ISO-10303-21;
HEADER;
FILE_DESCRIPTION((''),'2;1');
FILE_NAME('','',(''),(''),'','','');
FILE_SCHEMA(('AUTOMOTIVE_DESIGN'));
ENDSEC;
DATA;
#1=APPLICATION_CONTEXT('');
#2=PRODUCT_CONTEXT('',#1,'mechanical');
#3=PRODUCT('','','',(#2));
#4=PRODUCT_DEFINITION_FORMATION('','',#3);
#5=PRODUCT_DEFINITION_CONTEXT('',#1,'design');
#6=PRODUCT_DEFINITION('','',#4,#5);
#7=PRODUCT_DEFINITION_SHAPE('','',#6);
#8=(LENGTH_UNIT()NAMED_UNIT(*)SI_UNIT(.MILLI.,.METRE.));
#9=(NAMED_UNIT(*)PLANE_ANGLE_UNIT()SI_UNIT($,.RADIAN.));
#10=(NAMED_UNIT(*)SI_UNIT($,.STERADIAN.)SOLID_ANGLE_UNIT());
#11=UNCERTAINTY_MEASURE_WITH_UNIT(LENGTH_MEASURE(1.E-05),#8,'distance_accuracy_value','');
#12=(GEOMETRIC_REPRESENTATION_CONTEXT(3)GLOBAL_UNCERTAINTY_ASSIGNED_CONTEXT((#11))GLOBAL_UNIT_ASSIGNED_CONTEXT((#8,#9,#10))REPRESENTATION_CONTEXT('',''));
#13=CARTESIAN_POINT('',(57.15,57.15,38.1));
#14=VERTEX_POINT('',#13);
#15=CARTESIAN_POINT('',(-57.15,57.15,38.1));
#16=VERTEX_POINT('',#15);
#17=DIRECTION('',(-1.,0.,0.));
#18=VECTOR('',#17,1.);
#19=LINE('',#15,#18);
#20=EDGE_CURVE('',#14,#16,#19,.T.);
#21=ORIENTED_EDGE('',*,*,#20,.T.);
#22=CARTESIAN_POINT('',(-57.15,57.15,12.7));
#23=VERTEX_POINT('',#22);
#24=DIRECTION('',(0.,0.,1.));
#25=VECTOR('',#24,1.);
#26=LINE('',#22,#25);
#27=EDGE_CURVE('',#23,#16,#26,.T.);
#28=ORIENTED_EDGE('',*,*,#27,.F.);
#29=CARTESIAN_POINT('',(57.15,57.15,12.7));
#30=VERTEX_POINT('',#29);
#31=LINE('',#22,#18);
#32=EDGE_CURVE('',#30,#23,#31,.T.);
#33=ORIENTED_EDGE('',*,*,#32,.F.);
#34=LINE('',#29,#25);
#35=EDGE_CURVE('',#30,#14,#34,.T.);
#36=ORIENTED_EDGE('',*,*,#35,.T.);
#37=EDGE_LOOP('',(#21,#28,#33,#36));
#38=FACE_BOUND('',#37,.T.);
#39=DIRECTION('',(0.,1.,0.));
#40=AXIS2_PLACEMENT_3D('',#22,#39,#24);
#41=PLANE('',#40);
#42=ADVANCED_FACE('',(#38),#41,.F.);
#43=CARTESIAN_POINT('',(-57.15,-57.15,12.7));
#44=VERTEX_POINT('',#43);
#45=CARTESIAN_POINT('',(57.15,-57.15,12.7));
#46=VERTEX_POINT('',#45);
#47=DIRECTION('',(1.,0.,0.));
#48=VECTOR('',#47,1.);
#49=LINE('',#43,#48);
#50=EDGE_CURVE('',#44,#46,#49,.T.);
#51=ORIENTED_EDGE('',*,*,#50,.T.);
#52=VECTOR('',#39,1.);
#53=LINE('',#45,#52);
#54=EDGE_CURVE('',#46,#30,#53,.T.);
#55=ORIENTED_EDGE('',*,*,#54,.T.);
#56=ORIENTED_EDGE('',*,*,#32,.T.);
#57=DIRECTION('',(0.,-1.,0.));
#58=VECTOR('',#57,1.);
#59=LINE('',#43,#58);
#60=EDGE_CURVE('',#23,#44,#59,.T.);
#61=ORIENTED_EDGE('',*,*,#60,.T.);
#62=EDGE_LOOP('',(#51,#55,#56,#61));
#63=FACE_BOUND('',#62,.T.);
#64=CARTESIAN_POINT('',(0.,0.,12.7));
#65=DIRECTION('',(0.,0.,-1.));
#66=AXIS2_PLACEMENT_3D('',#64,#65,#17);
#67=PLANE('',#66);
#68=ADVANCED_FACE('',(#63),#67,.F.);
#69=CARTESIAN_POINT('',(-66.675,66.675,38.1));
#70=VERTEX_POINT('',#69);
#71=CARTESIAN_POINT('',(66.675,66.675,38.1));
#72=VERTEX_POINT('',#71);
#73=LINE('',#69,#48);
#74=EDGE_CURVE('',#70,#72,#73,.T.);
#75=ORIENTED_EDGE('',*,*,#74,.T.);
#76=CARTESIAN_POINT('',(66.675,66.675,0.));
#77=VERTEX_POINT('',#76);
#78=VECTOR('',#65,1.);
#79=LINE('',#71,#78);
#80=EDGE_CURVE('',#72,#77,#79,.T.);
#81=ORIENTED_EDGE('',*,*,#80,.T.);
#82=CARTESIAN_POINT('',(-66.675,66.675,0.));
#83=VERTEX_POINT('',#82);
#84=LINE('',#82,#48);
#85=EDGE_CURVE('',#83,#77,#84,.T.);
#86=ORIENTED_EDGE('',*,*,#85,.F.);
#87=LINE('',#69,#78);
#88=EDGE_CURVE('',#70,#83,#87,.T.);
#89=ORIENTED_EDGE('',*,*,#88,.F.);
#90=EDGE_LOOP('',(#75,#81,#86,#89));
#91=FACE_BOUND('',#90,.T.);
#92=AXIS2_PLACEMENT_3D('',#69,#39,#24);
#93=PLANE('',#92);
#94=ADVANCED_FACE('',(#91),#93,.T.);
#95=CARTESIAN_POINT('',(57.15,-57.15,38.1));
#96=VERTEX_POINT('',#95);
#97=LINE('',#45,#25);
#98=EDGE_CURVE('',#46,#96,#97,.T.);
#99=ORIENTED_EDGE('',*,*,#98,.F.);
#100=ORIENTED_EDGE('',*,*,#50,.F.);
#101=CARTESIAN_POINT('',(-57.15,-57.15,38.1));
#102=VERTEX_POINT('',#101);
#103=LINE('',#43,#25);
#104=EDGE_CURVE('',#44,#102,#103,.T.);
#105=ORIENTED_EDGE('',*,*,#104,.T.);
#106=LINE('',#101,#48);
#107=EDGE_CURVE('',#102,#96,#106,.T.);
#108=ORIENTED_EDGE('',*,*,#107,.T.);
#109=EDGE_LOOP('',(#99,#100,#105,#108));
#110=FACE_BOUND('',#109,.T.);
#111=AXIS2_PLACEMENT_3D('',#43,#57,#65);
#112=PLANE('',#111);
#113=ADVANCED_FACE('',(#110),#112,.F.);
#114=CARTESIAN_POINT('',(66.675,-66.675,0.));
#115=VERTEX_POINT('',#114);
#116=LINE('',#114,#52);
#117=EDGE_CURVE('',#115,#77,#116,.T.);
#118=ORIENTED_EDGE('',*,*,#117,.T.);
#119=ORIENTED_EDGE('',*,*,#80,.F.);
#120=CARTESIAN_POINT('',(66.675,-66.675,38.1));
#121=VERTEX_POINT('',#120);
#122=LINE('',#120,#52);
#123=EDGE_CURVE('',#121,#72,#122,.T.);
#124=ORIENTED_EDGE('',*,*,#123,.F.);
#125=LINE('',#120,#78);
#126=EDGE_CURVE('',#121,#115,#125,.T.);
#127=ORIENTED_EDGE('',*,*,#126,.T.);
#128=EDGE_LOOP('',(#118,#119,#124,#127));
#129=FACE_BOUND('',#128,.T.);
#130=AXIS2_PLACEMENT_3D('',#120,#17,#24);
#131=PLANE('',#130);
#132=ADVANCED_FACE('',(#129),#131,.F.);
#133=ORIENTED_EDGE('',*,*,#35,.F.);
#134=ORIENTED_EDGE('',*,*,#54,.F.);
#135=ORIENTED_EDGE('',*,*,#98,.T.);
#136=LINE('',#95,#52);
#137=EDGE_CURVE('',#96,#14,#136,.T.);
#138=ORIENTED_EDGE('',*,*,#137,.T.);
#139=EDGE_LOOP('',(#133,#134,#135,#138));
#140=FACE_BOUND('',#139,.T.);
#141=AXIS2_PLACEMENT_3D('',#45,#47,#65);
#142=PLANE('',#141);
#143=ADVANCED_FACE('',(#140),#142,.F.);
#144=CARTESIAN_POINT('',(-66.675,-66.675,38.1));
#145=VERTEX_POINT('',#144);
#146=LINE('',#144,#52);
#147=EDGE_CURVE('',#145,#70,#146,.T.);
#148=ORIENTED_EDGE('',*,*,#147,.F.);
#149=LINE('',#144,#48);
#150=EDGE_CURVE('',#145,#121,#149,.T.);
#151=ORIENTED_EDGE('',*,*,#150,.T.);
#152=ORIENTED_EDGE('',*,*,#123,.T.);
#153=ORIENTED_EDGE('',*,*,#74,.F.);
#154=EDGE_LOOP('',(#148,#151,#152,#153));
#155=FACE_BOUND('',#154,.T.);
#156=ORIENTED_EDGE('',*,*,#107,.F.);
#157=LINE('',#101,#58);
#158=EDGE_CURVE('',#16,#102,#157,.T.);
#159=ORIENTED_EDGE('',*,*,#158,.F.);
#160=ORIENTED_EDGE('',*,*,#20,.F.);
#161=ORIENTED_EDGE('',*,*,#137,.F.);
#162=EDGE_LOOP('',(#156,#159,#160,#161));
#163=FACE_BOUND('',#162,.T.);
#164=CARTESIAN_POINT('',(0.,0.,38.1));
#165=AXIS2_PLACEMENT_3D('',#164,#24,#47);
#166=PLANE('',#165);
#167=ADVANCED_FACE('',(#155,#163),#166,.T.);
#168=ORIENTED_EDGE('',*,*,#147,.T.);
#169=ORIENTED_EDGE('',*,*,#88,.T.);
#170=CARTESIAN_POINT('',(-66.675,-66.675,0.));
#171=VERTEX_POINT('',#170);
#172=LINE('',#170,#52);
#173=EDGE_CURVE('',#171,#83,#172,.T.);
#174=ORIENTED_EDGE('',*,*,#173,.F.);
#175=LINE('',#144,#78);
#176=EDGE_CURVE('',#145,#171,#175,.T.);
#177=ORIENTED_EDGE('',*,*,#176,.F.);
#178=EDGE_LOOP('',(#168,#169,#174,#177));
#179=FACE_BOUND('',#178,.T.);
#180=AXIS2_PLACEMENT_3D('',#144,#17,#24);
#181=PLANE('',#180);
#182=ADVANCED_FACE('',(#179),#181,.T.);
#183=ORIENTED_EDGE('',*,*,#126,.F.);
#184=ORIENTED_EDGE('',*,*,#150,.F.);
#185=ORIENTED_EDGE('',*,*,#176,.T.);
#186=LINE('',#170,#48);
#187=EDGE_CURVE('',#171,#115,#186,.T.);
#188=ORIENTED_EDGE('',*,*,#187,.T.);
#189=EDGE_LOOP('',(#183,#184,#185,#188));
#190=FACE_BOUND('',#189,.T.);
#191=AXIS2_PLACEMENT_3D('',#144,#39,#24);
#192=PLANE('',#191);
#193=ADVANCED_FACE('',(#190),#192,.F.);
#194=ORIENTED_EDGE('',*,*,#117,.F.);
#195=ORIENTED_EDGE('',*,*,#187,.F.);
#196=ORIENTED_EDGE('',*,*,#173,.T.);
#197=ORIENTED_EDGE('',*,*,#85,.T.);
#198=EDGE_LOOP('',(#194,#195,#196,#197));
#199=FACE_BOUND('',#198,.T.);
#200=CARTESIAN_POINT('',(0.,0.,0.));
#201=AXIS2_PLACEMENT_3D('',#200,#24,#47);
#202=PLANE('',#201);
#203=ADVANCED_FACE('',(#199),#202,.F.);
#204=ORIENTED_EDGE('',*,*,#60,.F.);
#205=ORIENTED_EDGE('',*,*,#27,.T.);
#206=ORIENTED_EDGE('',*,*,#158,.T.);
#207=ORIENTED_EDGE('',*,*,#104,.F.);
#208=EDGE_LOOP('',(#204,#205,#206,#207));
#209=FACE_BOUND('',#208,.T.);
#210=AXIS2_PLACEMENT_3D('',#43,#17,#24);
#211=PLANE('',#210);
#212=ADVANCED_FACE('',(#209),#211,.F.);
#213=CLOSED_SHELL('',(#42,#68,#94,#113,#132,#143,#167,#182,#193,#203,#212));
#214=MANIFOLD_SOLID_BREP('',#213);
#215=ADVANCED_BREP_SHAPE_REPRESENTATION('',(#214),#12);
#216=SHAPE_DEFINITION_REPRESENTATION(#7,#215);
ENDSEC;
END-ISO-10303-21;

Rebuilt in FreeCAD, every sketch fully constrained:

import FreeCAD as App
import Part
import Sketcher
Q = App.Units.Quantity


def add_polygon(sketch, points):
    """Adds a closed chain of lines whose ends are joined by coincident constraints."""
    first, n = sketch.GeometryCount, len(points)
    for a, b in zip(points, points[1:] + points[:1]):
        sketch.addGeometry(Part.LineSegment(App.Vector(*a, 0), App.Vector(*b, 0)), False)
    for i in range(n):
        sketch.addConstraint(Sketcher.Constraint("Coincident", first + i, 2, first + (i + 1) % n, 1))

doc = App.newDocument("Part")
params = doc.addObject("Spreadsheet::Sheet", "Params")
for row, (alias, value) in enumerate([
    ("sketch1_width", "5.25 in"),
    ("pad1_length", "1.5 in"),
    ("sketch2_width", "4.5 in"),
    ("pocket1_length", "1 in"),
], start=1):
    params.set(f"A{row}", alias)
    params.set(f"B{row}", "=" + value)
    params.setAlias(f"B{row}", alias)

body = doc.addObject("PartDesign::Body", "Body")

# Sketch on XY plane
sketch1 = body.newObject("Sketcher::SketchObject", "Sketch")
sketch1.AttachmentSupport = (doc.getObject("XY_Plane"), [""])
sketch1.MapMode = "FlatFace"
add_polygon(sketch1, [(-67, 67), (-67, -67), (67, -67), (67, 67)])  # lines 0-3
sketch1.addConstraint(Sketcher.Constraint("Vertical", 0))
sketch1.addConstraint(Sketcher.Constraint("Horizontal", 1))
sketch1.addConstraint(Sketcher.Constraint("Vertical", 2))
sketch1.addConstraint(Sketcher.Constraint("Horizontal", 3))
sketch1.addConstraint(Sketcher.Constraint("Symmetric", 0, 2, 2, 2, -1, 1))
sketch1.addConstraint(Sketcher.Constraint("Equal", 3, 0))
sketch1.addConstraint(Sketcher.Constraint("DistanceX", 1, 1, 1, 2, Q("5.25 in")))
sketch1.setExpression("Constraints[10]", "Params.sketch1_width")
pad1 = body.newObject("PartDesign::Pad", "Pad")
pad1.Profile = sketch1
pad1.setExpression("Length", "Params.pad1_length")

# Sketch on XY plane
sketch2 = body.newObject("Sketcher::SketchObject", "Sketch001")
sketch2.AttachmentSupport = (doc.getObject("XY_Plane"), [""])
sketch2.MapMode = "FlatFace"
sketch2.AttachmentOffset = App.Placement(App.Vector(0, 0, 1.5 * 25.4), App.Rotation())
add_polygon(sketch2, [(-57, 57), (-57, -57), (57, -57), (57, 57)])  # lines 0-3
sketch2.addConstraint(Sketcher.Constraint("Vertical", 0))
sketch2.addConstraint(Sketcher.Constraint("Horizontal", 1))
sketch2.addConstraint(Sketcher.Constraint("Vertical", 2))
sketch2.addConstraint(Sketcher.Constraint("Horizontal", 3))
sketch2.addConstraint(Sketcher.Constraint("Symmetric", 0, 2, 2, 2, -1, 1))
sketch2.addConstraint(Sketcher.Constraint("Equal", 3, 0))
sketch2.addConstraint(Sketcher.Constraint("DistanceX", 1, 1, 1, 2, Q("4.5 in")))
sketch2.setExpression("Constraints[10]", "Params.sketch2_width")
pocket1 = body.newObject("PartDesign::Pocket", "Pocket")
pocket1.Profile = sketch2
pocket1.setExpression("Length", "Params.pocket1_length")

doc.recompute()
